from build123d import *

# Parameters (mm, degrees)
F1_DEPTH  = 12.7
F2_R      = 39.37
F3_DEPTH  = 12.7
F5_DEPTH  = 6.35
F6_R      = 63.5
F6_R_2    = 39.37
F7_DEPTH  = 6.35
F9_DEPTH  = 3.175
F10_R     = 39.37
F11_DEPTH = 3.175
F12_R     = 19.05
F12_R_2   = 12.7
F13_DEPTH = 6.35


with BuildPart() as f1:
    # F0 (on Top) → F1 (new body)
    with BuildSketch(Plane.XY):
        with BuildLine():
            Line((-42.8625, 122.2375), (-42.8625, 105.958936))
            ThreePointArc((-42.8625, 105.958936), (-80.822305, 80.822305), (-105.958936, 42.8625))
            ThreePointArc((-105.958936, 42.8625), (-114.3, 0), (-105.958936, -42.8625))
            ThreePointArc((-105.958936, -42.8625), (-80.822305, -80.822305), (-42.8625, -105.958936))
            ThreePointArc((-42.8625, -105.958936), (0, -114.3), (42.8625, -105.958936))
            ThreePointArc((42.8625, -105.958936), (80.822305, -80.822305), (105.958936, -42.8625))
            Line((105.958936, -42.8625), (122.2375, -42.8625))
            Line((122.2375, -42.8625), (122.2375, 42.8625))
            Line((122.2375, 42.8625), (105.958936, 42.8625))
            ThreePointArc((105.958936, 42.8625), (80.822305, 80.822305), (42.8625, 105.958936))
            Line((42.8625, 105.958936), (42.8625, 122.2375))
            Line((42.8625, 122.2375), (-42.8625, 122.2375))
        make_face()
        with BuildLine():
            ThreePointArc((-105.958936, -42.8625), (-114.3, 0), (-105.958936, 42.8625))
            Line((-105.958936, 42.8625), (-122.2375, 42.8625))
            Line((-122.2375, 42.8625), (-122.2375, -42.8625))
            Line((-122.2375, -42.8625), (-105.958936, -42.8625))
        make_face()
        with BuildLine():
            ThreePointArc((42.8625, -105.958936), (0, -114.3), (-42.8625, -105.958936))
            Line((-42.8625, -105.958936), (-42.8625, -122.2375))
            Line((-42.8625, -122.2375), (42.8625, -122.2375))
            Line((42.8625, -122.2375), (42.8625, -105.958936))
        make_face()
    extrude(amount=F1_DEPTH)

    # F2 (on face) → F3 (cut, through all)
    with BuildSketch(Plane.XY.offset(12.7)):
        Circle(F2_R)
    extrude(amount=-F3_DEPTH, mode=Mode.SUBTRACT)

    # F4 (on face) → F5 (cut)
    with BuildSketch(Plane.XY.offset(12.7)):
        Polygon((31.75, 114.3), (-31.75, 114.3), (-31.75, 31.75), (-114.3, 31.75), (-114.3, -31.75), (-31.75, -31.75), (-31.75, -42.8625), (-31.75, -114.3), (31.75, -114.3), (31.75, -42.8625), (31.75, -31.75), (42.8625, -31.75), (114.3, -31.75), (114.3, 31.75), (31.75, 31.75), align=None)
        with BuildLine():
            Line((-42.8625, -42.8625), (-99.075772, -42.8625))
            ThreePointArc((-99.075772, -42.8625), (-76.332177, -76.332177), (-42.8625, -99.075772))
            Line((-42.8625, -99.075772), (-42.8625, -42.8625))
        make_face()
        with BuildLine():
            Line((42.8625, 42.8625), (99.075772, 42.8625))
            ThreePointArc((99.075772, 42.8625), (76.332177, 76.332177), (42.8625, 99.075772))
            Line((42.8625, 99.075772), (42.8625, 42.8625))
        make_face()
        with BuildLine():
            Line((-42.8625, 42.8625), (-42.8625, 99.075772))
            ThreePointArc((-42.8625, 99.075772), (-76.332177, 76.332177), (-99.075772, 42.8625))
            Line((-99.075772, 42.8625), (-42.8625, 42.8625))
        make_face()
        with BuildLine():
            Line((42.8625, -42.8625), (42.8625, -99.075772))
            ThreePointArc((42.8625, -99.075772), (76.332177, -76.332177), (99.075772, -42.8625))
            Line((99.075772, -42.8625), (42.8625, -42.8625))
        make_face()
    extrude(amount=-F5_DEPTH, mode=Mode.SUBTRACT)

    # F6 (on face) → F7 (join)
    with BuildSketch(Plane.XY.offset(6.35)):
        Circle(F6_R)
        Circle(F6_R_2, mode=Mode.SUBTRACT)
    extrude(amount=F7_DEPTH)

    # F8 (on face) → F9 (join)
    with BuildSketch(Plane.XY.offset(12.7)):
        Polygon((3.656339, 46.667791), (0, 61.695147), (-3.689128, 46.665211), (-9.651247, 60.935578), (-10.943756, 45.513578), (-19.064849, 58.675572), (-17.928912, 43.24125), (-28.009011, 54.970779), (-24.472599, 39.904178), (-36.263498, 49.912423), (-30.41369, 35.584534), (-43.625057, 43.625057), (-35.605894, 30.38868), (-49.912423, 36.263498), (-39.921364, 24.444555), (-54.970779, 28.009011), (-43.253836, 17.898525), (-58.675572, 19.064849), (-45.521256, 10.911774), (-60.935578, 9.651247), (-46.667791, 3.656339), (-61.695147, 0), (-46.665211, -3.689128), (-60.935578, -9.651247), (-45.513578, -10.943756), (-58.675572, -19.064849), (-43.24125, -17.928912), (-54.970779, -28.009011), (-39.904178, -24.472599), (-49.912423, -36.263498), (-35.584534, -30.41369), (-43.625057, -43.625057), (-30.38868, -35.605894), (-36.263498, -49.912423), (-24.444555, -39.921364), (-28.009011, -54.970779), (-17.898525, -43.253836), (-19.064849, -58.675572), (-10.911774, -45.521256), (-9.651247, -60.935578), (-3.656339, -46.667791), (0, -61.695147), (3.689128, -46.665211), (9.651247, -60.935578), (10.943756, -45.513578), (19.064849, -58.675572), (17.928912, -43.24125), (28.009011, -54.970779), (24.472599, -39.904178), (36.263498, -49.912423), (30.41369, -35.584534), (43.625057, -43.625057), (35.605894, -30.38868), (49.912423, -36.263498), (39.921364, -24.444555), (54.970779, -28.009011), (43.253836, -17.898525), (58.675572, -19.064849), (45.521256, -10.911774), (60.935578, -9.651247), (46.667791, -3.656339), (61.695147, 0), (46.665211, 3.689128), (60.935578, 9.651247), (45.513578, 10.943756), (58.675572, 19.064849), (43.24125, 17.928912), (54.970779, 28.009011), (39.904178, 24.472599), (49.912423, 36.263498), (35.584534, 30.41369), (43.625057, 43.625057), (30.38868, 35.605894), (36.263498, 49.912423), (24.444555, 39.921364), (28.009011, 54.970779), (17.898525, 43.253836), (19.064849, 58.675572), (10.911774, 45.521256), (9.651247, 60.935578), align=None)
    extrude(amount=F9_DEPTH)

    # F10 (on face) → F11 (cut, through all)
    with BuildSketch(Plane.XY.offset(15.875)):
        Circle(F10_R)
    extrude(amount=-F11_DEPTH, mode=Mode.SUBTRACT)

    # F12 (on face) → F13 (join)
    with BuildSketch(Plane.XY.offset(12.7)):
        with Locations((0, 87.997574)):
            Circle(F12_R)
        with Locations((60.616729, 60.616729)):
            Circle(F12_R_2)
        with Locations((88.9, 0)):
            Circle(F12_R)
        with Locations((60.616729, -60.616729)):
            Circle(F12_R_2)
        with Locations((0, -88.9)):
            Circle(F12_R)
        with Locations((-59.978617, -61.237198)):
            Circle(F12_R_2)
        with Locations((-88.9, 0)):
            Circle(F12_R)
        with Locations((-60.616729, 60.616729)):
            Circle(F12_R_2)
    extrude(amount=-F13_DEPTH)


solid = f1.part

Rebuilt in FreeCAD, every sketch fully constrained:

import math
import FreeCAD as App
import Part
import Sketcher

V = App.Vector
Q = App.Units.Quantity


def add_polygon(sketch, points):
    """Adds a closed chain of lines whose ends are joined by coincident constraints."""
    first, n = sketch.GeometryCount, len(points)
    for a, b in zip(points, points[1:] + points[:1]):
        sketch.addGeometry(Part.LineSegment(App.Vector(*a, 0), App.Vector(*b, 0)), False)
    for i in range(n):
        sketch.addConstraint(Sketcher.Constraint("Coincident", first + i, 2, first + (i + 1) % n, 1))

doc = App.newDocument("Part")
params = doc.addObject("Spreadsheet::Sheet", "Params")
for row, (alias, value) in enumerate([
    ("sketch1_radius", "4.5000001 in"),
    ("sketch1_width", "3.375 in"),
    ("pad1_length", "0.5 in"),
    ("sketch2_diameter", "3.1 in"),
    ("sketch3_radius", "4.25 in"),
    ("sketch3_width", "2.5 in"),
    ("sketch3_width2", "3.25 in"),
    ("pocket2_length", "0.25 in"),
    ("sketch4_diameter", "5 in"),
    ("sketch4_diameter2", "3.1 in"),
    ("pad2_length", "0.25 in"),
    ("pad3_length", "0.125 in"),
    ("sketch6_diameter", "3.1 in"),
    ("sketch7_diameter", "1 in"),
    ("sketch7_diameter2", "1.5 in"),
    ("pad4_length", "0.25 in"),
], start=1):
    params.set(f"A{row}", alias)
    params.set(f"B{row}", "=" + value)
    params.setAlias(f"B{row}", alias)

body = doc.addObject("PartDesign::Body", "Body")

# Sketch on XY plane
sketch1 = doc.addObject("Sketcher::SketchObject", "Sketch")
body.addObject(sketch1)
sketch1.AttachmentSupport = (doc.XY_Plane, [""])
sketch1.MapMode = "FlatFace"
sketch1.addGeometry([
    Part.LineSegment(V(-43, 122, 0), V(-43, 106, 0)),  # 0
    Part.ArcOfCircle(Part.Circle(V(0, 0, 0), V(0, 0, 1), 114), math.radians(112), math.radians(158)),  # 1
    Part.LineSegment(V(-106, 43, 0), V(-122, 43, 0)),  # 2
    Part.LineSegment(V(-122, 43, 0), V(-122, -43, 0)),  # 3
    Part.LineSegment(V(-122, -43, 0), V(-106, -43, 0)),  # 4
    Part.ArcOfCircle(Part.Circle(V(0, 0, 0), V(0, 0, 1), 114), math.radians(-158), math.radians(-112)),  # 5
    Part.LineSegment(V(-43, -106, 0), V(-43, -122, 0)),  # 6
    Part.LineSegment(V(-43, -122, 0), V(43, -122, 0)),  # 7
    Part.LineSegment(V(43, -122, 0), V(43, -106, 0)),  # 8
    Part.ArcOfCircle(Part.Circle(V(0, 0, 0), V(0, 0, 1), 114), math.radians(-68), math.radians(-22)),  # 9
    Part.LineSegment(V(106, -43, 0), V(122, -43, 0)),  # 10
    Part.LineSegment(V(122, -43, 0), V(122, 43, 0)),  # 11
    Part.LineSegment(V(122, 43, 0), V(106, 43, 0)),  # 12
    Part.ArcOfCircle(Part.Circle(V(0, 0, 0), V(0, 0, 1), 114), math.radians(22), math.radians(68)),  # 13
    Part.LineSegment(V(43, 106, 0), V(43, 122, 0)),  # 14
    Part.LineSegment(V(43, 122, 0), V(-43, 122, 0)),  # 15
], False)
sketch1.addConstraint([
    Sketcher.Constraint("Coincident", 0, 2, 1, 1),
    Sketcher.Constraint("Coincident", 1, 2, 2, 1),
    Sketcher.Constraint("Coincident", 2, 2, 3, 1),
    Sketcher.Constraint("Coincident", 3, 2, 4, 1),
    Sketcher.Constraint("Coincident", 4, 2, 5, 1),
    Sketcher.Constraint("Coincident", 5, 2, 6, 1),
    Sketcher.Constraint("Coincident", 6, 2, 7, 1),
    Sketcher.Constraint("Coincident", 7, 2, 8, 1),
    Sketcher.Constraint("Coincident", 8, 2, 9, 1),
    Sketcher.Constraint("Coincident", 9, 2, 10, 1),
    Sketcher.Constraint("Coincident", 10, 2, 11, 1),
    Sketcher.Constraint("Coincident", 11, 2, 12, 1),
    Sketcher.Constraint("Coincident", 12, 2, 13, 1),
    Sketcher.Constraint("Coincident", 13, 2, 14, 1),
    Sketcher.Constraint("Coincident", 14, 2, 15, 1),
    Sketcher.Constraint("Coincident", 15, 2, 0, 1),
    Sketcher.Constraint("Vertical", 0),
    Sketcher.Constraint("Horizontal", 2),
    Sketcher.Constraint("Vertical", 3),
    Sketcher.Constraint("Horizontal", 4),
    Sketcher.Constraint("Vertical", 6),
    Sketcher.Constraint("Horizontal", 7),
    Sketcher.Constraint("Vertical", 8),
    Sketcher.Constraint("Horizontal", 10),
    Sketcher.Constraint("Vertical", 11),
    Sketcher.Constraint("Horizontal", 12),
    Sketcher.Constraint("Vertical", 14),
    Sketcher.Constraint("Horizontal", 15),
    Sketcher.Constraint("Coincident", 1, 3, -1, 1),
    Sketcher.Constraint("Coincident", 5, 3, -1, 1),
    Sketcher.Constraint("Coincident", 9, 3, -1, 1),
    Sketcher.Constraint("Coincident", 13, 3, -1, 1),
    Sketcher.Constraint("Equal", 1, 5),
    Sketcher.Constraint("Equal", 5, 9),
    Sketcher.Constraint("Equal", 9, 13),
    Sketcher.Constraint("Symmetric", 2, 2, 10, 2, -1, 1),
    Sketcher.Constraint("Symmetric", 6, 2, 14, 2, -1, 1),
    Sketcher.Constraint("Horizontal", 5, 2, 8, 2),
    Sketcher.Constraint("Horizontal", 4, 2, 9, 2),
    Sketcher.Constraint("Horizontal", 2, 2, 11, 2),
    Sketcher.Constraint("Horizontal", 0, 2, 13, 2),
    Sketcher.Constraint("Equal", 12, 0),
    Sketcher.Constraint("Equal", 15, 3),
    Sketcher.Constraint("Radius", 1, Q("4.5000001 in")),
    Sketcher.Constraint("DistanceX", 7, 1, 7, 2, Q("3.375 in")),
    Sketcher.Constraint("DistanceX", 2, 2, -1, 1, Q("4.8125 in")),
])
sketch1.setExpression("Constraints[43]", "Params.sketch1_radius")
sketch1.setExpression("Constraints[44]", "Params.sketch1_width")
pad1 = doc.addObject("PartDesign::Pad", "Pad")
body.addObject(pad1)
pad1.Profile = sketch1
pad1.setExpression("Length", "Params.pad1_length")

# Sketch on XY plane
sketch2 = doc.addObject("Sketcher::SketchObject", "Sketch001")
body.addObject(sketch2)
sketch2.AttachmentSupport = (doc.XY_Plane, [""])
sketch2.MapMode = "FlatFace"
sketch2.AttachmentOffset = App.Placement(V(0, 0, 0.5 * 25.4), App.Rotation())
sketch2.addGeometry(Part.Circle(V(0, 0, 0), V(0, 0, 1), 39), False)
sketch2.addConstraint([
    Sketcher.Constraint("Coincident", 0, 3, -1, 1),
    Sketcher.Constraint("Diameter", 0, Q("3.1 in")),
])
sketch2.setExpression("Constraints[1]", "Params.sketch2_diameter")
pocket1 = doc.addObject("PartDesign::Pocket", "Pocket")
body.addObject(pocket1)
pocket1.Profile = sketch2
pocket1.Type = "ThroughAll"

# Sketch on XY plane
sketch3 = doc.addObject("Sketcher::SketchObject", "Sketch002")
body.addObject(sketch3)
sketch3.AttachmentSupport = (doc.XY_Plane, [""])
sketch3.MapMode = "FlatFace"
sketch3.AttachmentOffset = App.Placement(V(0, 0, 0.5 * 25.4), App.Rotation())
add_polygon(sketch3, [(32, 114), (-32, 114), (-32, 32), (-114, 32), (-114, -32), (-32, -32), (-32, -114), (32, -114), (32, -32), (114, -32), (114, 32), (32, 32)])  # lines 0-11
sketch3.addGeometry(Part.LineSegment(V(-43, -43, 0), V(-99, -43, 0)), False)  # 12
sketch3.addGeometry(Part.ArcOfCircle(Part.Circle(V(0, 0, 0), V(0, 0, 1), 108), math.radians(-157), math.radians(-113)), False)  # 13
sketch3.addGeometry(Part.LineSegment(V(-43, -99, 0), V(-43, -43, 0)), False)  # 14
sketch3.addGeometry(Part.LineSegment(V(43, 43, 0), V(99, 43, 0)), False)  # 15
sketch3.addGeometry(Part.ArcOfCircle(Part.Circle(V(0, 0, 0), V(0, 0, 1), 108), math.radians(23), math.radians(67)), False)  # 16
sketch3.addGeometry(Part.LineSegment(V(43, 99, 0), V(43, 43, 0)), False)  # 17
sketch3.addGeometry(Part.LineSegment(V(-43, 43, 0), V(-43, 99, 0)), False)  # 18
sketch3.addGeometry(Part.ArcOfCircle(Part.Circle(V(0, 0, 0), V(0, 0, 1), 108), math.radians(113), math.radians(157)), False)  # 19
sketch3.addGeometry(Part.LineSegment(V(-99, 43, 0), V(-43, 43, 0)), False)  # 20
sketch3.addGeometry(Part.LineSegment(V(43, -43, 0), V(43, -99, 0)), False)  # 21
sketch3.addGeometry(Part.ArcOfCircle(Part.Circle(V(0, 0, 0), V(0, 0, 1), 108), math.radians(-67), math.radians(-23)), False)  # 22
sketch3.addGeometry(Part.LineSegment(V(99, -43, 0), V(43, -43, 0)), False)  # 23
sketch3.addConstraint([
    Sketcher.Constraint("Coincident", 12, 2, 13, 1),
    Sketcher.Constraint("Coincident", 13, 2, 14, 1),
    Sketcher.Constraint("Coincident", 14, 2, 12, 1),
    Sketcher.Constraint("Coincident", 15, 2, 16, 1),
    Sketcher.Constraint("Coincident", 16, 2, 17, 1),
    Sketcher.Constraint("Coincident", 17, 2, 15, 1),
    Sketcher.Constraint("Coincident", 18, 2, 19, 1),
    Sketcher.Constraint("Coincident", 19, 2, 20, 1),
    Sketcher.Constraint("Coincident", 20, 2, 18, 1),
    Sketcher.Constraint("Coincident", 21, 2, 22, 1),
    Sketcher.Constraint("Coincident", 22, 2, 23, 1),
    Sketcher.Constraint("Coincident", 23, 2, 21, 1),
    Sketcher.Constraint("Horizontal", 0),
    Sketcher.Constraint("Vertical", 1),
    Sketcher.Constraint("Horizontal", 2),
    Sketcher.Constraint("Vertical", 3),
    Sketcher.Constraint("Horizontal", 4),
    Sketcher.Constraint("Vertical", 5),
    Sketcher.Constraint("Horizontal", 6),
    Sketcher.Constraint("Vertical", 7),
    Sketcher.Constraint("Horizontal", 8),
    Sketcher.Constraint("Vertical", 9),
    Sketcher.Constraint("Horizontal", 10),
    Sketcher.Constraint("Vertical", 11),
    Sketcher.Constraint("Horizontal", 12),
    Sketcher.Constraint("Vertical", 14),
    Sketcher.Constraint("Horizontal", 15),
    Sketcher.Constraint("Vertical", 17),
    Sketcher.Constraint("Vertical", 18),
    Sketcher.Constraint("Horizontal", 20),
    Sketcher.Constraint("Vertical", 21),
    Sketcher.Constraint("Horizontal", 23),
    Sketcher.Constraint("Coincident", 13, 3, -1, 1),
    Sketcher.Constraint("Coincident", 16, 3, -1, 1),
    Sketcher.Constraint("Coincident", 19, 3, -1, 1),
    Sketcher.Constraint("Coincident", 22, 3, -1, 1),
    Sketcher.Constraint("Equal", 13, 16),
    Sketcher.Constraint("Equal", 16, 19),
    Sketcher.Constraint("Equal", 19, 22),
    Sketcher.Constraint("Symmetric", 0, 2, 6, 2, -1, 1),
    Sketcher.Constraint("Symmetric", 2, 2, 8, 2, -1, 1),
    Sketcher.Constraint("Symmetric", 4, 2, 10, 2, -1, 1),
    Sketcher.Constraint("Symmetric", 14, 2, 17, 2, -1, 1),
    Sketcher.Constraint("Symmetric", 20, 2, 23, 2, -1, 1),
    Sketcher.Constraint("Symmetric", 4, 2, 7, 2, -2),
    Sketcher.Constraint("Symmetric", 17, 2, 20, 2, -2),
    Sketcher.Constraint("Equal", 10, 1),
    Sketcher.Constraint("Equal", 6, 3),
    Sketcher.Constraint("Equal", 23, 14),
    Sketcher.Constraint("Radius", 13, Q("4.25 in")),
    Sketcher.Constraint("DistanceX", 0, 2, 0, 1, Q("2.5 in")),
    Sketcher.Constraint("DistanceX", 2, 2, 2, 1, Q("3.25 in")),
    Sketcher.Constraint("DistanceY", 12, 2, -1, 1, Q("1.6875 in")),
])
sketch3.setExpression("Constraints[61]", "Params.sketch3_radius")
sketch3.setExpression("Constraints[62]", "Params.sketch3_width")
sketch3.setExpression("Constraints[63]", "Params.sketch3_width2")
pocket2 = doc.addObject("PartDesign::Pocket", "Pocket001")
body.addObject(pocket2)
pocket2.Profile = sketch3
pocket2.setExpression("Length", "Params.pocket2_length")

# Sketch on XY plane
sketch4 = doc.addObject("Sketcher::SketchObject", "Sketch003")
body.addObject(sketch4)
sketch4.AttachmentSupport = (doc.XY_Plane, [""])
sketch4.MapMode = "FlatFace"
sketch4.AttachmentOffset = App.Placement(V(0, 0, 0.25 * 25.4), App.Rotation())
sketch4.addGeometry([
    Part.Circle(V(0, 0, 0), V(0, 0, 1), 64),
    Part.Circle(V(0, 0, 0), V(0, 0, 1), 39),
], False)
sketch4.addConstraint([
    Sketcher.Constraint("Coincident", 0, 3, -1, 1),
    Sketcher.Constraint("Coincident", 1, 3, -1, 1),
    Sketcher.Constraint("Diameter", 0, Q("5 in")),
    Sketcher.Constraint("Diameter", 1, Q("3.1 in")),
])
sketch4.setExpression("Constraints[2]", "Params.sketch4_diameter")
sketch4.setExpression("Constraints[3]", "Params.sketch4_diameter2")
pad2 = doc.addObject("PartDesign::Pad", "Pad001")
body.addObject(pad2)
pad2.Profile = sketch4
pad2.setExpression("Length", "Params.pad2_length")

# Sketch on XY plane
sketch5 = doc.addObject("Sketcher::SketchObject", "Sketch004")
body.addObject(sketch5)
sketch5.AttachmentSupport = (doc.XY_Plane, [""])
sketch5.MapMode = "FlatFace"
sketch5.AttachmentOffset = App.Placement(V(0, 0, 0.5 * 25.4), App.Rotation())
add_polygon(sketch5, [(4, 47), (0, 62), (-4, 47), (-10, 61), (-11, 46), (-19, 59), (-18, 43), (-28, 55), (-24, 40), (-36, 50), (-30, 36), (-44, 44), (-36, 30), (-50, 36), (-40, 24), (-55, 28), (-43, 18), (-59, 19), (-46, 11), (-61, 10), (-47, 4), (-62, 0), (-47, -4), (-61, -10), (-46, -11), (-59, -19), (-43, -18), (-55, -28), (-40, -24), (-50, -36), (-36, -30), (-44, -44), (-30, -36), (-36, -50), (-24, -40), (-28, -55), (-18, -43), (-19, -59), (-11, -46), (-10, -61), (-4, -47), (0, -62), (4, -47), (10, -61), (11, -46), (19, -59), (18, -43), (28, -55), (24, -40), (36, -50), (30, -36), (44, -44), (36, -30), (50, -36), (40, -24), (55, -28), (43, -18), (59, -19), (46, -11), (61, -10), (47, -4), (62, 0), (47, 4), (61, 10), (46, 11), (59, 19), (43, 18), (55, 28), (40, 24), (50, 36), (36, 30), (44, 44), (30, 36), (36, 50), (24, 40), (28, 55), (18, 43), (19, 59), (11, 46), (10, 61)])  # lines 0-79
sketch5.addConstraint([
    Sketcher.Constraint("Symmetric", 0, 2, 40, 2, -1, 1),
    Sketcher.Constraint("Symmetric", 1, 2, 41, 2, -1, 1),
    Sketcher.Constraint("Symmetric", 2, 2, 42, 2, -1, 1),
    Sketcher.Constraint("Symmetric", 3, 2, 43, 2, -1, 1),
    Sketcher.Constraint("Symmetric", 4, 2, 44, 2, -1, 1),
    Sketcher.Constraint("Symmetric", 5, 2, 45, 2, -1, 1),
    Sketcher.Constraint("Symmetric", 6, 2, 46, 2, -1, 1),
    Sketcher.Constraint("Symmetric", 7, 2, 47, 2, -1, 1),
    Sketcher.Constraint("Symmetric", 8, 2, 48, 2, -1, 1),
    Sketcher.Constraint("Symmetric", 9, 2, 49, 2, -1, 1),
    Sketcher.Constraint("Symmetric", 10, 2, 50, 2, -1, 1),
    Sketcher.Constraint("Symmetric", 11, 2, 51, 2, -1, 1),
    Sketcher.Constraint("Symmetric", 12, 2, 52, 2, -1, 1),
    Sketcher.Constraint("Symmetric", 13, 2, 53, 2, -1, 1),
    Sketcher.Constraint("Symmetric", 14, 2, 54, 2, -1, 1),
    Sketcher.Constraint("Symmetric", 15, 2, 55, 2, -1, 1),
    Sketcher.Constraint("Symmetric", 16, 2, 56, 2, -1, 1),
    Sketcher.Constraint("Symmetric", 17, 2, 57, 2, -1, 1),
    Sketcher.Constraint("Symmetric", 18, 2, 58, 2, -1, 1),
    Sketcher.Constraint("Symmetric", 19, 2, 59, 2, -1, 1),
    Sketcher.Constraint("Symmetric", 20, 2, 60, 2, -1, 1),
    Sketcher.Constraint("Symmetric", 21, 2, 61, 2, -1, 1),
    Sketcher.Constraint("Symmetric", 22, 2, 62, 2, -1, 1),
    Sketcher.Constraint("Symmetric", 23, 2, 63, 2, -1, 1),
    Sketcher.Constraint("Symmetric", 24, 2, 64, 2, -1, 1),
    Sketcher.Constraint("Symmetric", 25, 2, 65, 2, -1, 1),
    Sketcher.Constraint("Symmetric", 26, 2, 66, 2, -1, 1),
    Sketcher.Constraint("Symmetric", 27, 2, 67, 2, -1, 1),
    Sketcher.Constraint("Symmetric", 28, 2, 68, 2, -1, 1),
    Sketcher.Constraint("Symmetric", 29, 2, 69, 2, -1, 1),
    Sketcher.Constraint("Symmetric", 30, 2, 70, 2, -1, 1),
    Sketcher.Constraint("Symmetric", 31, 2, 71, 2, -1, 1),
    Sketcher.Constraint("Symmetric", 32, 2, 72, 2, -1, 1),
    Sketcher.Constraint("Symmetric", 33, 2, 73, 2, -1, 1),
    Sketcher.Constraint("Symmetric", 34, 2, 74, 2, -1, 1),
    Sketcher.Constraint("Symmetric", 35, 2, 75, 2, -1, 1),
    Sketcher.Constraint("Symmetric", 36, 2, 76, 2, -1, 1),
    Sketcher.Constraint("Symmetric", 37, 2, 77, 2, -1, 1),
    Sketcher.Constraint("Symmetric", 38, 2, 78, 2, -1, 1),
    Sketcher.Constraint("Symmetric", 39, 2, 79, 2, -1, 1),
    Sketcher.Constraint("Symmetric", 38, 2, 42, 2, -2),
    Sketcher.Constraint("Symmetric", 36, 2, 44, 2, -2),
    Sketcher.Constraint("Symmetric", 34, 2, 46, 2, -2),
    Sketcher.Constraint("Symmetric", 32, 2, 48, 2, -2),
    Sketcher.Constraint("Symmetric", 30, 2, 50, 2, -2),
    Sketcher.Constraint("Symmetric", 28, 2, 52, 2, -2),
    Sketcher.Constraint("Symmetric", 26, 2, 54, 2, -2),
    Sketcher.Constraint("Symmetric", 24, 2, 56, 2, -2),
    Sketcher.Constraint("Symmetric", 22, 2, 58, 2, -2),
    Sketcher.Constraint("PointOnObject", 0, 2, -2),
    Sketcher.Constraint("PointOnObject", 20, 2, -1),
    Sketcher.Constraint("Perpendicular", 0, 20),
    Sketcher.Constraint("Perpendicular", 1, 21),
    Sketcher.Constraint("Perpendicular", 2, 22),
    Sketcher.Constraint("Perpendicular", 3, 23),
    Sketcher.Constraint("Perpendicular", 4, 24),
    Sketcher.Constraint("Perpendicular", 5, 25),
    Sketcher.Constraint("Perpendicular", 6, 26),
    Sketcher.Constraint("Perpendicular", 7, 27),
    Sketcher.Constraint("Perpendicular", 8, 28),
    Sketcher.Constraint("Perpendicular", 9, 29),
    Sketcher.Constraint("Perpendicular", 10, 30),
    Sketcher.Constraint("Perpendicular", 11, 31),
    Sketcher.Constraint("Perpendicular", 12, 32),
    Sketcher.Constraint("Perpendicular", 13, 33),
    Sketcher.Constraint("Perpendicular", 14, 34),
    Sketcher.Constraint("Perpendicular", 15, 35),
    Sketcher.Constraint("Perpendicular", 16, 36),
    Sketcher.Constraint("Perpendicular", 17, 37),
    Sketcher.Constraint("Perpendicular", 18, 38),
    Sketcher.Constraint("Perpendicular", 19, 39),
    Sketcher.Constraint("Equal", 0, 2),
    Sketcher.Constraint("Equal", 1, 3),
    Sketcher.Constraint("Equal", 2, 4),
    Sketcher.Constraint("Equal", 3, 5),
    Sketcher.Constraint("Equal", 4, 6),
    Sketcher.Constraint("Equal", 5, 7),
    Sketcher.Constraint("Equal", 6, 8),
    Sketcher.Constraint("Equal", 7, 9),
    Sketcher.Constraint("Equal", 8, 10),
    Sketcher.Constraint("Equal", 9, 11),
    Sketcher.Constraint("Equal", 10, 12),
    Sketcher.Constraint("Equal", 11, 13),
    Sketcher.Constraint("Equal", 12, 14),
    Sketcher.Constraint("Equal", 13, 15),
    Sketcher.Constraint("Equal", 14, 16),
    Sketcher.Constraint("Equal", 15, 17),
    Sketcher.Constraint("Equal", 16, 18),
    Sketcher.Constraint("Equal", 17, 19),
    Sketcher.Constraint("Equal", 18, 20),
    Sketcher.Constraint("Equal", 20, 22),
    Sketcher.Constraint("Equal", 21, 23),
    Sketcher.Constraint("Equal", 22, 24),
    Sketcher.Constraint("Equal", 23, 25),
    Sketcher.Constraint("Equal", 24, 26),
    Sketcher.Constraint("Equal", 25, 27),
    Sketcher.Constraint("Equal", 26, 28),
    Sketcher.Constraint("Equal", 27, 29),
    Sketcher.Constraint("Equal", 28, 30),
    Sketcher.Constraint("DistanceX", 7, 2, -1, 1, 24.472599),
    Sketcher.Constraint("DistanceX", 1, 2, -1, 1, 3.689128),
    Sketcher.Constraint("DistanceY", -1, 1, 1, 2, 46.665211),
    Sketcher.Constraint("DistanceY", -1, 1, 3, 2, 45.513578),
    Sketcher.Constraint("DistanceX", 4, 2, -1, 1, 19.064849),
    Sketcher.Constraint("DistanceY", -1, 1, 5, 2, 43.24125),
    Sketcher.Constraint("DistanceX", 6, 2, -1, 1, 28.009011),
    Sketcher.Constraint("DistanceY", -1, 1, 6, 2, 54.970779),
    Sketcher.Constraint("DistanceY", -1, 1, 7, 2, 39.904178),
    Sketcher.Constraint("DistanceX", 9, 2, -1, 1, 30.41369),
    Sketcher.Constraint("DistanceY", -1, 1, 11, 2, 30.38868),
    Sketcher.Constraint("DistanceX", 8, 2, -1, 1, 36.263498),
])
pad3 = doc.addObject("PartDesign::Pad", "Pad002")
body.addObject(pad3)
pad3.Profile = sketch5
pad3.setExpression("Length", "Params.pad3_length")

# Sketch on XY plane
sketch6 = doc.addObject("Sketcher::SketchObject", "Sketch005")
body.addObject(sketch6)
sketch6.AttachmentSupport = (doc.XY_Plane, [""])
sketch6.MapMode = "FlatFace"
sketch6.AttachmentOffset = App.Placement(V(0, 0, 0.625 * 25.4), App.Rotation())
sketch6.addGeometry(Part.Circle(V(0, 0, 0), V(0, 0, 1), 39), False)
sketch6.addConstraint([
    Sketcher.Constraint("Coincident", 0, 3, -1, 1),
    Sketcher.Constraint("Diameter", 0, Q("3.1 in")),
])
sketch6.setExpression("Constraints[1]", "Params.sketch6_diameter")
pocket3 = doc.addObject("PartDesign::Pocket", "Pocket002")
body.addObject(pocket3)
pocket3.Profile = sketch6
pocket3.Type = "ThroughAll"

# Sketch on XY plane
sketch7 = doc.addObject("Sketcher::SketchObject", "Sketch006")
body.addObject(sketch7)
sketch7.AttachmentSupport = (doc.XY_Plane, [""])
sketch7.MapMode = "FlatFace"
sketch7.AttachmentOffset = App.Placement(V(0, 0, 0.5 * 25.4), App.Rotation())
sketch7.addGeometry([
    Part.Circle(V(0, 88, 0), V(0, 0, 1), 19),  # 0
    Part.Circle(V(61, 61, 0), V(0, 0, 1), 13),  # 1
    Part.Circle(V(89, 0, 0), V(0, 0, 1), 19),  # 2
    Part.Circle(V(61, -61, 0), V(0, 0, 1), 13),  # 3
    Part.Circle(V(0, -89, 0), V(0, 0, 1), 19),  # 4
    Part.Circle(V(-60, -61, 0), V(0, 0, 1), 13),  # 5
    Part.Circle(V(-89, 0, 0), V(0, 0, 1), 19),  # 6
    Part.Circle(V(-61, 61, 0), V(0, 0, 1), 13),  # 7
], False)
sketch7.addConstraint([
    Sketcher.Constraint("Equal", 0, 2),
    Sketcher.Constraint("Equal", 1, 3),
    Sketcher.Constraint("Equal", 2, 4),
    Sketcher.Constraint("Equal", 3, 5),
    Sketcher.Constraint("Equal", 4, 6),
    Sketcher.Constraint("Equal", 5, 7),
    Sketcher.Constraint("Symmetric", 2, 3, 6, 3, -1, 1),
    Sketcher.Constraint("Symmetric", 3, 3, 7, 3, -1, 1),
    Sketcher.Constraint("Symmetric", 1, 3, 7, 3, -2),
    Sketcher.Constraint("PointOnObject", 0, 3, -2),
    Sketcher.Constraint("PointOnObject", 2, 3, -1),
    Sketcher.Constraint("PointOnObject", 4, 3, -2),
    Sketcher.Constraint("Diameter", 1, Q("1 in")),
    Sketcher.Constraint("Diameter", 0, Q("1.5 in")),
    Sketcher.Constraint("DistanceX", -1, 1, 2, 3, Q("3.5 in")),
    Sketcher.Constraint("DistanceY", 4, 3, -1, 1, Q("3.5 in")),
    Sketcher.Constraint("DistanceX", -1, 1, 1, 3, 60.616729),
    Sketcher.Constraint("DistanceY", -1, 1, 1, 3, 60.616729),
    Sketcher.Constraint("DistanceY", 5, 3, 3, 3, 0.620469),
    Sketcher.Constraint("DistanceY", 5, 3, 0, 3, 149.234772),
    Sketcher.Constraint("DistanceX", 7, 3, 5, 3, 0.638112),
])
sketch7.setExpression("Constraints[12]", "Params.sketch7_diameter")
sketch7.setExpression("Constraints[13]", "Params.sketch7_diameter2")
pad4 = doc.addObject("PartDesign::Pad", "Pad003")
body.addObject(pad4)
pad4.Profile = sketch7
pad4.setExpression("Length", "Params.pad4_length")
pad4.Reversed = True

doc.recompute()
